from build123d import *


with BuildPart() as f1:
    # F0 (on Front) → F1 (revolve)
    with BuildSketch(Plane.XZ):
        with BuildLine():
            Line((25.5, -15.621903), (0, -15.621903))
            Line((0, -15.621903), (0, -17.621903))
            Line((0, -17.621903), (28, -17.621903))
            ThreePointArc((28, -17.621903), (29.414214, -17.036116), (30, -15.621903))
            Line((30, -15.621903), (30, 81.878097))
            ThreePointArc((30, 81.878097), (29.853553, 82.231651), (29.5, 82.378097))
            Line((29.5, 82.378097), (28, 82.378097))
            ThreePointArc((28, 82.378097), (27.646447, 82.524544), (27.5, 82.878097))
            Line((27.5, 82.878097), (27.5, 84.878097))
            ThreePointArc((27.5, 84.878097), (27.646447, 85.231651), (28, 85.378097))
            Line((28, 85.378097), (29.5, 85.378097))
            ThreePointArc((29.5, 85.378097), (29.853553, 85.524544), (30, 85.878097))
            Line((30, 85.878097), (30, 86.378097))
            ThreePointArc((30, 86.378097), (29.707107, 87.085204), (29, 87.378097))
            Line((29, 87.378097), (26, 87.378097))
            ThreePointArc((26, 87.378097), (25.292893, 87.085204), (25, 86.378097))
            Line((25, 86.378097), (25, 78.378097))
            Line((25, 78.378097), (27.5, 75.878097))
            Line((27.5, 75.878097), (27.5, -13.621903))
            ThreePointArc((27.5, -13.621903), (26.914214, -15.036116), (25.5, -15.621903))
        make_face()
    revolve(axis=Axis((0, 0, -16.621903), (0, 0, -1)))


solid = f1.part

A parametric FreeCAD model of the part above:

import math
import FreeCAD as App
import Part
import Sketcher
from FreeCAD import Vector
Q = App.Units.Quantity

doc = App.newDocument("Part")
body = doc.addObject("PartDesign::Body", "Body")

sketch1 = body.newObject("Sketcher::SketchObject", "Sketch")
sketch1.AttachmentSupport = (doc.getObject("XZ_Plane"), [""])
sketch1.MapMode = "FlatFace"
sketch1.addGeometry([
    Part.LineSegment(Vector(25.5, -15.621903, 0), Vector(0, -15.621903, 0)),
    Part.LineSegment(Vector(0, -15.621903, 0), Vector(0, -17.621903, 0)),
    Part.LineSegment(Vector(0, -17.621903, 0), Vector(28, -17.621903, 0)),
    Part.ArcOfCircle(Part.Circle(Vector(28, -15.621903, 0), Vector(0, 0, 1), 2), math.radians(-89.999994), math.radians(-0.000006)),
    Part.LineSegment(Vector(30, -15.621903, 0), Vector(30, 81.878097, 0)),
    Part.ArcOfCircle(Part.Circle(Vector(29.5, 81.878097, 0), Vector(0, 0, 1), 0.5), math.radians(-0.000043), math.radians(90.000043)),
    Part.LineSegment(Vector(29.5, 82.378097, 0), Vector(28, 82.378097, 0)),
    Part.ArcOfCircle(Part.Circle(Vector(28.000001, 82.878098, 0), Vector(0, 0, 1), 0.500001), math.radians(-179.999847), math.radians(-90.000153)),
    Part.LineSegment(Vector(27.5, 82.878097, 0), Vector(27.5, 84.878097, 0)),
    Part.ArcOfCircle(Part.Circle(Vector(28, 84.878097, 0), Vector(0, 0, 1), 0.5), math.radians(89.999957), math.radians(180.000043)),
    Part.LineSegment(Vector(28, 85.378097, 0), Vector(29.5, 85.378097, 0)),
    Part.ArcOfCircle(Part.Circle(Vector(29.499999, 85.878098, 0), Vector(0, 0, 1), 0.500001), math.radians(-89.999847), math.radians(-0.000153)),
    Part.LineSegment(Vector(30, 85.878097, 0), Vector(30, 86.378097, 0)),
    Part.ArcOfCircle(Part.Circle(Vector(29.000001, 86.378098, 0), Vector(0, 0, 1), 0.999999), math.radians(-0.000043), math.radians(90.000043)),
    Part.LineSegment(Vector(29, 87.378097, 0), Vector(26, 87.378097, 0)),
    Part.ArcOfCircle(Part.Circle(Vector(25.999999, 86.378098, 0), Vector(0, 0, 1), 0.999999), math.radians(89.999957), math.radians(180.000043)),
    Part.LineSegment(Vector(25, 86.378097, 0), Vector(25, 78.378097, 0)),
    Part.LineSegment(Vector(25, 78.378097, 0), Vector(27.5, 75.878097, 0)),
    Part.LineSegment(Vector(27.5, 75.878097, 0), Vector(27.5, -13.621903, 0)),
    Part.ArcOfCircle(Part.Circle(Vector(25.5, -13.621903, 0), Vector(0, 0, 1), 2), math.radians(-89.999994), math.radians(-0.000006)),
], False)
sketch1.addConstraint([
    Sketcher.Constraint("Coincident", 0, 2, 1, 1),
    Sketcher.Constraint("Coincident", 1, 2, 2, 1),
    Sketcher.Constraint("Tangent", 2, 2, 3, 1),
    Sketcher.Constraint("Tangent", 3, 2, 4, 1),
    Sketcher.Constraint("Tangent", 4, 2, 5, 1),
    Sketcher.Constraint("Tangent", 5, 2, 6, 1),
    Sketcher.Constraint("Coincident", 6, 2, 7, 2),
    Sketcher.Constraint("Coincident", 7, 1, 8, 1),
    Sketcher.Constraint("Tangent", 8, 2, 9, 2),
    Sketcher.Constraint("Tangent", 9, 1, 10, 1),
    Sketcher.Constraint("Coincident", 10, 2, 11, 1),
    Sketcher.Constraint("Coincident", 11, 2, 12, 1),
    Sketcher.Constraint("Tangent", 12, 2, 13, 1),
    Sketcher.Constraint("Tangent", 13, 2, 14, 1),
    Sketcher.Constraint("Tangent", 14, 2, 15, 1),
    Sketcher.Constraint("Tangent", 15, 2, 16, 1),
    Sketcher.Constraint("Coincident", 16, 2, 17, 1),
    Sketcher.Constraint("Coincident", 17, 2, 18, 1),
    Sketcher.Constraint("Tangent", 18, 2, 19, 2),
    Sketcher.Constraint("Tangent", 19, 1, 0, 1),
    Sketcher.Constraint("Horizontal", 0),
    Sketcher.Constraint("Vertical", 1),
    Sketcher.Constraint("Horizontal", 2),
    Sketcher.Constraint("Vertical", 4),
    Sketcher.Constraint("Horizontal", 6),
    Sketcher.Constraint("Vertical", 8),
    Sketcher.Constraint("Horizontal", 10),
    Sketcher.Constraint("Vertical", 12),
    Sketcher.Constraint("Horizontal", 14),
    Sketcher.Constraint("Vertical", 16),
    Sketcher.Constraint("Vertical", 18),
    Sketcher.Constraint("Equal", 5, 7),
    Sketcher.Constraint("Equal", 7, 9),
    Sketcher.Constraint("Equal", 9, 11),
    Sketcher.Constraint("Equal", 13, 15),
    Sketcher.Constraint("Equal", 3, 19),
    Sketcher.Constraint("PointOnObject", 0, 2, -2),
    Sketcher.Constraint("Horizontal", 3, 3, 0, 2),
    Sketcher.Constraint("Vertical", 3, 3, 7, 3),
    Sketcher.Constraint("Vertical", 5, 3, 11, 3),
    Sketcher.Constraint("Vertical", 2, 2, 6, 2),
    Sketcher.Constraint("Vertical", 5, 2, 10, 2),
    Sketcher.Constraint("Vertical", 8, 2, 17, 2),
    Sketcher.Constraint("Equal", 1, 8),
    Sketcher.Constraint("Radius", 3, 2.0),
    Sketcher.Constraint("Radius", 13, 0.999999),
    Sketcher.Constraint("Radius", 5, 0.5),
    Sketcher.Constraint("DistanceX", 2, 1, 2, 2, 28.0),
    Sketcher.Constraint("DistanceX", 14, 2, 14, 1, 3.0),
    Sketcher.Constraint("DistanceY", 16, 2, 16, 1, 8.0),
    Sketcher.Constraint("Angle", 17, Q("-45 deg")),
    Sketcher.Constraint("DistanceY", 4, 1, 4, 2, 97.5),
    Sketcher.Constraint("DistanceY", 12, 1, 12, 2, 0.5),
    Sketcher.Constraint("DistanceY", 18, 2, 18, 1, 89.5),
    Sketcher.Constraint("DistanceY", 7, 3, 9, 3, 1.999999),
    Sketcher.Constraint("DistanceY", -1, 1, 7, 3, 82.878098),
])
revolution = body.newObject("PartDesign::Revolution", "Revolution")
revolution.Profile = sketch1
revolution.ReferenceAxis = (sketch1, ["V_Axis"])
revolution.Angle = 360

doc.recompute()
